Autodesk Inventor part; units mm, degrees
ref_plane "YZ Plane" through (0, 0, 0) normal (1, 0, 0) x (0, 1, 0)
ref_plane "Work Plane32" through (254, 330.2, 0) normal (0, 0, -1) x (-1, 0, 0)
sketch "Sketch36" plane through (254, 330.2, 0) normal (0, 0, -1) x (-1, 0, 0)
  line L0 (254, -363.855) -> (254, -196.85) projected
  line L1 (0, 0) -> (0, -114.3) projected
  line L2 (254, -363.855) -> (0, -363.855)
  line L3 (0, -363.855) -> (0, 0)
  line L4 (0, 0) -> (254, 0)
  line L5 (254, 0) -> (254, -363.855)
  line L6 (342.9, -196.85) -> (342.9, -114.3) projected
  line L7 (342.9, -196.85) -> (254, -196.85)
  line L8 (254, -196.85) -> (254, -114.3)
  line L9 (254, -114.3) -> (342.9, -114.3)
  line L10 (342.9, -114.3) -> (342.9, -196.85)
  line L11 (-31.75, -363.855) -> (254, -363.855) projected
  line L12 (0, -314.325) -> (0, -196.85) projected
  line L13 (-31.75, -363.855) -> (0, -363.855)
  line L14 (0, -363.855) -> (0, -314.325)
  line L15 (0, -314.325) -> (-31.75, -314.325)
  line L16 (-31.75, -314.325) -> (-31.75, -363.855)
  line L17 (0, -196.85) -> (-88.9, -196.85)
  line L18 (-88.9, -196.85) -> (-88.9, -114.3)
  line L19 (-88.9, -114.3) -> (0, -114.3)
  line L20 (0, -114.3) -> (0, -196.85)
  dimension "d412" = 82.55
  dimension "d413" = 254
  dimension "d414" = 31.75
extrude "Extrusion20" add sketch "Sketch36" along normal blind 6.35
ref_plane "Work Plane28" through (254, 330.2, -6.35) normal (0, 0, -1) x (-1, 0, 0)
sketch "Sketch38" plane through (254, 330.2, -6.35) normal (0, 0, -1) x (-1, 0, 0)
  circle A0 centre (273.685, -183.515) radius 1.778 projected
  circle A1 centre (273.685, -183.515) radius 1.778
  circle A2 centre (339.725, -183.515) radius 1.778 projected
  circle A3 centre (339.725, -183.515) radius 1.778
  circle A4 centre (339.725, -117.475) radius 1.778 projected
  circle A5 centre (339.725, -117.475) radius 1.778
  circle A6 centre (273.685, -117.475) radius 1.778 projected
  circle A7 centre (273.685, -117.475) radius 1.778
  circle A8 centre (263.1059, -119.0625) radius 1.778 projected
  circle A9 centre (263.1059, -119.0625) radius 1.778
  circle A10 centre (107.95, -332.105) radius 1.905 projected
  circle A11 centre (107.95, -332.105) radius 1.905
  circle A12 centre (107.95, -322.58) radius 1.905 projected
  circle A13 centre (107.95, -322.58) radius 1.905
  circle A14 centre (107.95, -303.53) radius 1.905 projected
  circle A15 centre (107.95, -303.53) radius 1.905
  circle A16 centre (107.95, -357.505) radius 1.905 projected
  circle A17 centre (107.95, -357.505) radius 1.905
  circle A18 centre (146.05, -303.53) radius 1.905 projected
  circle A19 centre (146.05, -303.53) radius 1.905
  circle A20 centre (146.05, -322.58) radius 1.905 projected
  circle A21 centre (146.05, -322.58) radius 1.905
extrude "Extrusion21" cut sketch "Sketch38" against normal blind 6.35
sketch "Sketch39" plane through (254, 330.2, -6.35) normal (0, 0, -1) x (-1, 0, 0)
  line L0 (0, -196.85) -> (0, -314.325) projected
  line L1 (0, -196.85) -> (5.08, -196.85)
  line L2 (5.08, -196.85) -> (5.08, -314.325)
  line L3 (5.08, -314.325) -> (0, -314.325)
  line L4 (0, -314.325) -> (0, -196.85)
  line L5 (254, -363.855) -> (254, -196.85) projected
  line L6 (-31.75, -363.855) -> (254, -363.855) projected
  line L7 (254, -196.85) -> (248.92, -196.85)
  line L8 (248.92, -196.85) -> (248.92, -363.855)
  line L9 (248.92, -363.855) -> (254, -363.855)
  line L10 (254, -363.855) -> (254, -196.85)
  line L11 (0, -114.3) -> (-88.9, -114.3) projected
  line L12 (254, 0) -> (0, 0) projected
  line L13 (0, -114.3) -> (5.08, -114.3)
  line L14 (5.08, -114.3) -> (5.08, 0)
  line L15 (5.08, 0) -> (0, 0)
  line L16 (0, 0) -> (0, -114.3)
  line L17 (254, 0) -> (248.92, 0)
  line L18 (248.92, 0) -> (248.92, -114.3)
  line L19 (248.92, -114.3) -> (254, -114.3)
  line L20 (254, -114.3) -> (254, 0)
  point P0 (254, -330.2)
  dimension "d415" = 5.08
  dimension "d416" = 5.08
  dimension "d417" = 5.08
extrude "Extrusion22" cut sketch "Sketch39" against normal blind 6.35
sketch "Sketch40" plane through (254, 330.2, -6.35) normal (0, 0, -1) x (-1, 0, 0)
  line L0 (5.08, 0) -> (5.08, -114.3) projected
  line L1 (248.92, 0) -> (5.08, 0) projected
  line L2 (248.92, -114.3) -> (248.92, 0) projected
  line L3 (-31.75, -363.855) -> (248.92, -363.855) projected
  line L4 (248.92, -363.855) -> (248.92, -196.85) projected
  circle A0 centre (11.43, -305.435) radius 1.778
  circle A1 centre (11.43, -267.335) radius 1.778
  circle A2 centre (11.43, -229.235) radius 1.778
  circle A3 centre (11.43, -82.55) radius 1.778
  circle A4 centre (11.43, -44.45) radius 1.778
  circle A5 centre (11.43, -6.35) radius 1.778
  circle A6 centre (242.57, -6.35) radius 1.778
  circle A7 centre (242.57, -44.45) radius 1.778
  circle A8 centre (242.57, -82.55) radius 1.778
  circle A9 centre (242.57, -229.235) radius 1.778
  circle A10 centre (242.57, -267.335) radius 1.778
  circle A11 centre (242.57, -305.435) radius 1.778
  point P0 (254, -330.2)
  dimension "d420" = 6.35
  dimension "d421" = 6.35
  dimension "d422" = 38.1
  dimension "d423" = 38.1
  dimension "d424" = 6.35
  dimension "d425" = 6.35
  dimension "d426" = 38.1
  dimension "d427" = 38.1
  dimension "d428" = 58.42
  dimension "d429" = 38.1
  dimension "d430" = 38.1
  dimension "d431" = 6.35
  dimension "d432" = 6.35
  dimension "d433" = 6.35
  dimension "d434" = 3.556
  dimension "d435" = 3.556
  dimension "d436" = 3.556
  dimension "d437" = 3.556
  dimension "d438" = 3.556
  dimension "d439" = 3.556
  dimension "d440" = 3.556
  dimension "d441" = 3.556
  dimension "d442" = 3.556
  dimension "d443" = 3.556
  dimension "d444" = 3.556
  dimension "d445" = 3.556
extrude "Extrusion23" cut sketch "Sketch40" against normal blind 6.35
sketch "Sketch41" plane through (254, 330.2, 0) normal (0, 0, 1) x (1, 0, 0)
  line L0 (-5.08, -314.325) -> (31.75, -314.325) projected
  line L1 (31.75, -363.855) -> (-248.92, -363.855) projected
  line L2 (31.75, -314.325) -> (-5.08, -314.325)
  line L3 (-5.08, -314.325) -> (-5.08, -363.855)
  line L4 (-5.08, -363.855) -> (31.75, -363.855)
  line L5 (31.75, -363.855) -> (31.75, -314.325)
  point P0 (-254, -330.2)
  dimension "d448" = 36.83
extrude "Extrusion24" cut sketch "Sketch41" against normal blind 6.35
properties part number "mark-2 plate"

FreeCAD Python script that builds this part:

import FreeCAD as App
import Part
import Sketcher
from FreeCAD import Vector
Q = App.Units.Quantity

doc = App.newDocument("Part")
body = doc.addObject("PartDesign::Body", "Body")

sketch1 = body.newObject("Sketcher::SketchObject", "Sketch")
sketch1.AttachmentSupport = (doc.getObject("XY_Plane"), [""])
sketch1.MapMode = "FlatFace"
sketch1.addGeometry(Part.LineSegment(Vector(0, -33.655, 0), Vector(0, 133.35, 0)), False)
sketch1.addGeometry(Part.LineSegment(Vector(0, 133.35, 0), Vector(-88.9, 133.35, 0)), False)
sketch1.addGeometry(Part.LineSegment(Vector(-88.9, 133.35, 0), Vector(-88.9, 215.9, 0)), False)
sketch1.addGeometry(Part.LineSegment(Vector(-88.9, 215.9, 0), Vector(0, 215.9, 0)), False)
sketch1.addGeometry(Part.LineSegment(Vector(0, 215.9, 0), Vector(0, 330.2, 0)), False)
sketch1.addGeometry(Part.LineSegment(Vector(0, 330.2, 0), Vector(254, 330.2, 0)), False)
sketch1.addGeometry(Part.LineSegment(Vector(254, 330.2, 0), Vector(254, 215.9, 0)), False)
sketch1.addGeometry(Part.LineSegment(Vector(254, 215.9, 0), Vector(342.9, 215.9, 0)), False)
sketch1.addGeometry(Part.LineSegment(Vector(342.9, 215.9, 0), Vector(342.9, 133.35, 0)), False)
sketch1.addGeometry(Part.LineSegment(Vector(342.9, 133.35, 0), Vector(254, 133.35, 0)), False)
sketch1.addGeometry(Part.LineSegment(Vector(254, 133.35, 0), Vector(254, 15.875, 0)), False)
sketch1.addGeometry(Part.LineSegment(Vector(254, 15.875, 0), Vector(285.75, 15.875, 0)), False)
sketch1.addGeometry(Part.LineSegment(Vector(285.75, 15.875, 0), Vector(285.75, -33.655, 0)), False)
sketch1.addGeometry(Part.LineSegment(Vector(285.75, -33.655, 0), Vector(0, -33.655, 0)), False)
sketch1.addConstraint(Sketcher.Constraint("Coincident", 0, 2, 1, 1))
sketch1.addConstraint(Sketcher.Constraint("Coincident", 1, 2, 2, 1))
sketch1.addConstraint(Sketcher.Constraint("Coincident", 2, 2, 3, 1))
sketch1.addConstraint(Sketcher.Constraint("Coincident", 3, 2, 4, 1))
sketch1.addConstraint(Sketcher.Constraint("Coincident", 4, 2, 5, 1))
sketch1.addConstraint(Sketcher.Constraint("Coincident", 5, 2, 6, 1))
sketch1.addConstraint(Sketcher.Constraint("Coincident", 6, 2, 7, 1))
sketch1.addConstraint(Sketcher.Constraint("Coincident", 7, 2, 8, 1))
sketch1.addConstraint(Sketcher.Constraint("Coincident", 8, 2, 9, 1))
sketch1.addConstraint(Sketcher.Constraint("Coincident", 9, 2, 10, 1))
sketch1.addConstraint(Sketcher.Constraint("Coincident", 10, 2, 11, 1))
sketch1.addConstraint(Sketcher.Constraint("Coincident", 11, 2, 12, 1))
sketch1.addConstraint(Sketcher.Constraint("Coincident", 12, 2, 13, 1))
sketch1.addConstraint(Sketcher.Constraint("Coincident", 13, 2, 0, 1))
sketch1.addConstraint(Sketcher.Constraint("Vertical", 0))
sketch1.addConstraint(Sketcher.Constraint("Horizontal", 1))
sketch1.addConstraint(Sketcher.Constraint("Vertical", 2))
sketch1.addConstraint(Sketcher.Constraint("Horizontal", 3))
sketch1.addConstraint(Sketcher.Constraint("Vertical", 4))
sketch1.addConstraint(Sketcher.Constraint("Horizontal", 5))
sketch1.addConstraint(Sketcher.Constraint("Vertical", 6))
sketch1.addConstraint(Sketcher.Constraint("Horizontal", 7))
sketch1.addConstraint(Sketcher.Constraint("Vertical", 8))
sketch1.addConstraint(Sketcher.Constraint("Horizontal", 9))
sketch1.addConstraint(Sketcher.Constraint("Vertical", 10))
sketch1.addConstraint(Sketcher.Constraint("Horizontal", 11))
sketch1.addConstraint(Sketcher.Constraint("Vertical", 12))
sketch1.addConstraint(Sketcher.Constraint("Horizontal", 13))
sketch1.addConstraint(Sketcher.Constraint("PointOnObject", 0, 2, -2))
sketch1.addConstraint(Sketcher.Constraint("PointOnObject", 3, 2, -2))
sketch1.addConstraint(Sketcher.Constraint("Horizontal", 3, 2, 6, 2))
sketch1.addConstraint(Sketcher.Constraint("Horizontal", 1, 2, 8, 2))
sketch1.addConstraint(Sketcher.Constraint("Vertical", 6, 2, 9, 2))
sketch1.addConstraint(Sketcher.Constraint("Equal", 3, 7))
sketch1.addConstraint(Sketcher.Constraint("DistanceX", 5, 1, 5, 2, Q("10 in")))
sketch1.addConstraint(Sketcher.Constraint("DistanceX", 11, 1, 11, 2, Q("1.25 in")))
sketch1.addConstraint(Sketcher.Constraint("DistanceY", 2, 1, 2, 2, Q("3.25 in")))
sketch1.addConstraint(Sketcher.Constraint("DistanceX", 1, 2, 1, 1, Q("3.5 in")))
sketch1.addConstraint(Sketcher.Constraint("DistanceY", 4, 1, 4, 2, Q("4.5 in")))
sketch1.addConstraint(Sketcher.Constraint("DistanceY", -1, 1, 4, 2, Q("13 in")))
sketch1.addConstraint(Sketcher.Constraint("DistanceY", 12, 2, 12, 1, Q("1.95 in")))
sketch1.addConstraint(Sketcher.Constraint("DistanceY", 0, 1, 0, 2, Q("6.575 in")))
pad1 = body.newObject("PartDesign::Pad", "Pad")
pad1.Profile = sketch1
pad1.Length = Q("0.25 in")
pad1.Reversed = True

sketch2 = body.newObject("Sketcher::SketchObject", "Sketch001")
sketch2.AttachmentSupport = (doc.getObject("XY_Plane"), [""])
sketch2.MapMode = "FlatFace"
sketch2.AttachmentOffset = App.Placement(Vector(0, 0, -0.25 * 25.4), App.Rotation())
sketch2.addGeometry(Part.Circle(Vector(-19.685, 146.685, 0), Vector(0, 0, 1), 1.778), False)
sketch2.addGeometry(Part.Circle(Vector(-85.725, 146.685, 0), Vector(0, 0, 1), 1.778), False)
sketch2.addGeometry(Part.Circle(Vector(-85.725, 212.725, 0), Vector(0, 0, 1), 1.778), False)
sketch2.addGeometry(Part.Circle(Vector(-19.685, 212.725, 0), Vector(0, 0, 1), 1.778), False)
sketch2.addGeometry(Part.Circle(Vector(-9.1059, 211.1375, 0), Vector(0, 0, 1), 1.778), False)
sketch2.addGeometry(Part.Circle(Vector(146.05, -1.905, 0), Vector(0, 0, 1), 1.905), False)
sketch2.addGeometry(Part.Circle(Vector(146.05, 7.62, 0), Vector(0, 0, 1), 1.905), False)
sketch2.addGeometry(Part.Circle(Vector(146.05, 26.67, 0), Vector(0, 0, 1), 1.905), False)
sketch2.addGeometry(Part.Circle(Vector(146.05, -27.305, 0), Vector(0, 0, 1), 1.905), False)
sketch2.addGeometry(Part.Circle(Vector(107.95, 26.67, 0), Vector(0, 0, 1), 1.905), False)
sketch2.addGeometry(Part.Circle(Vector(107.95, 7.62, 0), Vector(0, 0, 1), 1.905), False)
sketch2.addConstraint(Sketcher.Constraint("Equal", 0, 1))
sketch2.addConstraint(Sketcher.Constraint("Equal", 1, 2))
sketch2.addConstraint(Sketcher.Constraint("Equal", 2, 3))
sketch2.addConstraint(Sketcher.Constraint("Equal", 3, 4))
sketch2.addConstraint(Sketcher.Constraint("Equal", 5, 6))
sketch2.addConstraint(Sketcher.Constraint("Equal", 6, 7))
sketch2.addConstraint(Sketcher.Constraint("Equal", 7, 8))
sketch2.addConstraint(Sketcher.Constraint("Equal", 8, 9))
sketch2.addConstraint(Sketcher.Constraint("Equal", 9, 10))
sketch2.addConstraint(Sketcher.Constraint("Horizontal", 0, 3, 1, 3))
sketch2.addConstraint(Sketcher.Constraint("Horizontal", 2, 3, 3, 3))
sketch2.addConstraint(Sketcher.Constraint("Horizontal", 7, 3, 9, 3))
sketch2.addConstraint(Sketcher.Constraint("Horizontal", 6, 3, 10, 3))
sketch2.addConstraint(Sketcher.Constraint("Vertical", 1, 3, 2, 3))
sketch2.addConstraint(Sketcher.Constraint("Vertical", 0, 3, 3, 3))
sketch2.addConstraint(Sketcher.Constraint("Vertical", 5, 3, 6, 3))
sketch2.addConstraint(Sketcher.Constraint("Vertical", 6, 3, 7, 3))
sketch2.addConstraint(Sketcher.Constraint("Vertical", 7, 3, 8, 3))
sketch2.addConstraint(Sketcher.Constraint("Vertical", 9, 3, 10, 3))
sketch2.addConstraint(Sketcher.Constraint("Diameter", 0, Q("0.14 in")))
sketch2.addConstraint(Sketcher.Constraint("Diameter", 5, Q("0.15 in")))
sketch2.addConstraint(Sketcher.Constraint("DistanceY", 8, 3, 5, 3, Q("1 in")))
sketch2.addConstraint(Sketcher.Constraint("DistanceY", -1, 1, 6, 3, Q("0.3 in")))
sketch2.addConstraint(Sketcher.Constraint("DistanceX", 1, 3, 0, 3, Q("2.6 in")))
sketch2.addConstraint(Sketcher.Constraint("DistanceY", 1, 3, 2, 3, Q("2.6 in")))
sketch2.addConstraint(Sketcher.Constraint("DistanceX", 9, 3, 7, 3, Q("1.5 in")))
sketch2.addConstraint(Sketcher.Constraint("DistanceX", -1, 1, 5, 3, Q("5.75 in")))
sketch2.addConstraint(Sketcher.Constraint("DistanceY", -1, 1, 7, 3, Q("1.05 in")))
sketch2.addConstraint(Sketcher.Constraint("DistanceY", 5, 3, 0, 3, Q("5.85 in")))
sketch2.addConstraint(Sketcher.Constraint("DistanceX", 0, 3, -1, 1, Q("0.775 in")))
sketch2.addConstraint(Sketcher.Constraint("DistanceY", -1, 1, 0, 3, Q("5.775 in")))
sketch2.addConstraint(Sketcher.Constraint("DistanceY", -1, 1, 4, 3, Q("8.3125 in")))
sketch2.addConstraint(Sketcher.Constraint("DistanceX", 4, 3, -1, 1, Q("0.3585 in")))
pocket1 = body.newObject("PartDesign::Pocket", "Pocket")
pocket1.Profile = sketch2
pocket1.Length = Q("0.25 in")
pocket1.Reversed = True

sketch3 = body.newObject("Sketcher::SketchObject", "Sketch002")
sketch3.AttachmentSupport = (doc.getObject("XY_Plane"), [""])
sketch3.MapMode = "FlatFace"
sketch3.AttachmentOffset = App.Placement(Vector(0, 0, -0.25 * 25.4), App.Rotation())
sketch3.addGeometry(Part.LineSegment(Vector(248.92, 133.35, 0), Vector(254, 133.35, 0)), False)
sketch3.addGeometry(Part.LineSegment(Vector(254, 133.35, 0), Vector(254, 15.875, 0)), False)
sketch3.addGeometry(Part.LineSegment(Vector(254, 15.875, 0), Vector(248.92, 15.875, 0)), False)
sketch3.addGeometry(Part.LineSegment(Vector(248.92, 15.875, 0), Vector(248.92, 133.35, 0)), False)
sketch3.addGeometry(Part.LineSegment(Vector(5.08, -33.655, 0), Vector(0, -33.655, 0)), False)
sketch3.addGeometry(Part.LineSegment(Vector(0, -33.655, 0), Vector(0, 133.35, 0)), False)
sketch3.addGeometry(Part.LineSegment(Vector(0, 133.35, 0), Vector(5.08, 133.35, 0)), False)
sketch3.addGeometry(Part.LineSegment(Vector(5.08, 133.35, 0), Vector(5.08, -33.655, 0)), False)
sketch3.addGeometry(Part.LineSegment(Vector(0, 215.9, 0), Vector(0, 330.2, 0)), False)
sketch3.addGeometry(Part.LineSegment(Vector(0, 330.2, 0), Vector(5.08, 330.2, 0)), False)
sketch3.addGeometry(Part.LineSegment(Vector(5.08, 330.2, 0), Vector(5.08, 215.9, 0)), False)
sketch3.addGeometry(Part.LineSegment(Vector(5.08, 215.9, 0), Vector(0, 215.9, 0)), False)
sketch3.addGeometry(Part.LineSegment(Vector(248.92, 215.9, 0), Vector(248.92, 330.2, 0)), False)
sketch3.addGeometry(Part.LineSegment(Vector(248.92, 330.2, 0), Vector(254, 330.2, 0)), False)
sketch3.addGeometry(Part.LineSegment(Vector(254, 330.2, 0), Vector(254, 215.9, 0)), False)
sketch3.addGeometry(Part.LineSegment(Vector(254, 215.9, 0), Vector(248.92, 215.9, 0)), False)
sketch3.addConstraint(Sketcher.Constraint("Coincident", 0, 2, 1, 1))
sketch3.addConstraint(Sketcher.Constraint("Coincident", 1, 2, 2, 1))
sketch3.addConstraint(Sketcher.Constraint("Coincident", 2, 2, 3, 1))
sketch3.addConstraint(Sketcher.Constraint("Coincident", 3, 2, 0, 1))
sketch3.addConstraint(Sketcher.Constraint("Coincident", 4, 2, 5, 1))
sketch3.addConstraint(Sketcher.Constraint("Coincident", 5, 2, 6, 1))
sketch3.addConstraint(Sketcher.Constraint("Coincident", 6, 2, 7, 1))
sketch3.addConstraint(Sketcher.Constraint("Coincident", 7, 2, 4, 1))
sketch3.addConstraint(Sketcher.Constraint("Coincident", 8, 2, 9, 1))
sketch3.addConstraint(Sketcher.Constraint("Coincident", 9, 2, 10, 1))
sketch3.addConstraint(Sketcher.Constraint("Coincident", 10, 2, 11, 1))
sketch3.addConstraint(Sketcher.Constraint("Coincident", 11, 2, 8, 1))
sketch3.addConstraint(Sketcher.Constraint("Coincident", 12, 2, 13, 1))
sketch3.addConstraint(Sketcher.Constraint("Coincident", 13, 2, 14, 1))
sketch3.addConstraint(Sketcher.Constraint("Coincident", 14, 2, 15, 1))
sketch3.addConstraint(Sketcher.Constraint("Coincident", 15, 2, 12, 1))
sketch3.addConstraint(Sketcher.Constraint("Horizontal", 0))
sketch3.addConstraint(Sketcher.Constraint("Vertical", 1))
sketch3.addConstraint(Sketcher.Constraint("Horizontal", 2))
sketch3.addConstraint(Sketcher.Constraint("Vertical", 3))
sketch3.addConstraint(Sketcher.Constraint("Horizontal", 4))
sketch3.addConstraint(Sketcher.Constraint("Vertical", 5))
sketch3.addConstraint(Sketcher.Constraint("Horizontal", 6))
sketch3.addConstraint(Sketcher.Constraint("Vertical", 7))
sketch3.addConstraint(Sketcher.Constraint("Vertical", 8))
sketch3.addConstraint(Sketcher.Constraint("Horizontal", 9))
sketch3.addConstraint(Sketcher.Constraint("Vertical", 10))
sketch3.addConstraint(Sketcher.Constraint("Horizontal", 11))
sketch3.addConstraint(Sketcher.Constraint("Vertical", 12))
sketch3.addConstraint(Sketcher.Constraint("Horizontal", 13))
sketch3.addConstraint(Sketcher.Constraint("Vertical", 14))
sketch3.addConstraint(Sketcher.Constraint("Horizontal", 15))
sketch3.addConstraint(Sketcher.Constraint("PointOnObject", 4, 2, -2))
sketch3.addConstraint(Sketcher.Constraint("PointOnObject", 8, 2, -2))
sketch3.addConstraint(Sketcher.Constraint("Horizontal", 3, 2, 5, 2))
sketch3.addConstraint(Sketcher.Constraint("Horizontal", 9, 2, 12, 2))
sketch3.addConstraint(Sketcher.Constraint("Horizontal", 11, 2, 14, 2))
sketch3.addConstraint(Sketcher.Constraint("Vertical", 7, 2, 9, 2))
sketch3.addConstraint(Sketcher.Constraint("Vertical", 3, 2, 12, 2))
sketch3.addConstraint(Sketcher.Constraint("Vertical", 1, 2, 13, 2))
sketch3.addConstraint(Sketcher.Constraint("Equal", 2, 4))
sketch3.addConstraint(Sketcher.Constraint("DistanceX", 0, 1, 0, 2, Q("0.2 in")))
sketch3.addConstraint(Sketcher.Constraint("DistanceY", 8, 1, 8, 2, Q("4.5 in")))
sketch3.addConstraint(Sketcher.Constraint("DistanceX", -1, 1, 0, 2, Q("10 in")))
sketch3.addConstraint(Sketcher.Constraint("DistanceY", -1, 1, 8, 2, Q("13 in")))
sketch3.addConstraint(Sketcher.Constraint("DistanceY", 1, 2, 1, 1, Q("4.625 in")))
sketch3.addConstraint(Sketcher.Constraint("DistanceY", 5, 1, 5, 2, Q("6.575 in")))
sketch3.addConstraint(Sketcher.Constraint("DistanceY", -1, 1, 0, 2, Q("5.25 in")))
pocket2 = body.newObject("PartDesign::Pocket", "Pocket001")
pocket2.Profile = sketch3
pocket2.Length = Q("0.25 in")
pocket2.Reversed = True

sketch4 = body.newObject("Sketcher::SketchObject", "Sketch003")
sketch4.AttachmentSupport = (doc.getObject("XY_Plane"), [""])
sketch4.MapMode = "FlatFace"
sketch4.AttachmentOffset = App.Placement(Vector(0, 0, -0.25 * 25.4), App.Rotation())
sketch4.addGeometry(Part.Circle(Vector(242.57, 24.765, 0), Vector(0, 0, 1), 1.778), False)
sketch4.addGeometry(Part.Circle(Vector(242.57, 62.865, 0), Vector(0, 0, 1), 1.778), False)
sketch4.addGeometry(Part.Circle(Vector(242.57, 100.965, 0), Vector(0, 0, 1), 1.778), False)
sketch4.addGeometry(Part.Circle(Vector(242.57, 247.65, 0), Vector(0, 0, 1), 1.778), False)
sketch4.addGeometry(Part.Circle(Vector(242.57, 285.75, 0), Vector(0, 0, 1), 1.778), False)
sketch4.addGeometry(Part.Circle(Vector(242.57, 323.85, 0), Vector(0, 0, 1), 1.778), False)
sketch4.addGeometry(Part.Circle(Vector(11.43, 323.85, 0), Vector(0, 0, 1), 1.778), False)
sketch4.addGeometry(Part.Circle(Vector(11.43, 285.75, 0), Vector(0, 0, 1), 1.778), False)
sketch4.addGeometry(Part.Circle(Vector(11.43, 247.65, 0), Vector(0, 0, 1), 1.778), False)
sketch4.addGeometry(Part.Circle(Vector(11.43, 100.965, 0), Vector(0, 0, 1), 1.778), False)
sketch4.addGeometry(Part.Circle(Vector(11.43, 62.865, 0), Vector(0, 0, 1), 1.778), False)
sketch4.addGeometry(Part.Circle(Vector(11.43, 24.765, 0), Vector(0, 0, 1), 1.778), False)
sketch4.addConstraint(Sketcher.Constraint("Equal", 0, 1))
sketch4.addConstraint(Sketcher.Constraint("Equal", 1, 2))
sketch4.addConstraint(Sketcher.Constraint("Equal", 2, 3))
sketch4.addConstraint(Sketcher.Constraint("Equal", 3, 4))
sketch4.addConstraint(Sketcher.Constraint("Equal", 4, 5))
sketch4.addConstraint(Sketcher.Constraint("Equal", 5, 6))
sketch4.addConstraint(Sketcher.Constraint("Equal", 6, 7))
sketch4.addConstraint(Sketcher.Constraint("Equal", 7, 8))
sketch4.addConstraint(Sketcher.Constraint("Equal", 8, 9))
sketch4.addConstraint(Sketcher.Constraint("Equal", 9, 10))
sketch4.addConstraint(Sketcher.Constraint("Equal", 10, 11))
sketch4.addConstraint(Sketcher.Constraint("Horizontal", 5, 3, 6, 3))
sketch4.addConstraint(Sketcher.Constraint("Horizontal", 4, 3, 7, 3))
sketch4.addConstraint(Sketcher.Constraint("Horizontal", 3, 3, 8, 3))
sketch4.addConstraint(Sketcher.Constraint("Horizontal", 2, 3, 9, 3))
sketch4.addConstraint(Sketcher.Constraint("Horizontal", 1, 3, 10, 3))
sketch4.addConstraint(Sketcher.Constraint("Horizontal", 0, 3, 11, 3))
sketch4.addConstraint(Sketcher.Constraint("Vertical", 0, 3, 1, 3))
sketch4.addConstraint(Sketcher.Constraint("Vertical", 1, 3, 2, 3))
sketch4.addConstraint(Sketcher.Constraint("Vertical", 2, 3, 3, 3))
sketch4.addConstraint(Sketcher.Constraint("Vertical", 3, 3, 4, 3))
sketch4.addConstraint(Sketcher.Constraint("Vertical", 4, 3, 5, 3))
sketch4.addConstraint(Sketcher.Constraint("Vertical", 6, 3, 7, 3))
sketch4.addConstraint(Sketcher.Constraint("Vertical", 7, 3, 8, 3))
sketch4.addConstraint(Sketcher.Constraint("Vertical", 8, 3, 9, 3))
sketch4.addConstraint(Sketcher.Constraint("Vertical", 9, 3, 10, 3))
sketch4.addConstraint(Sketcher.Constraint("Vertical", 10, 3, 11, 3))
sketch4.addConstraint(Sketcher.Constraint("Diameter", 0, Q("0.14 in")))
sketch4.addConstraint(Sketcher.Constraint("DistanceY", 0, 3, 1, 3, Q("1.5 in")))
sketch4.addConstraint(Sketcher.Constraint("DistanceY", 1, 3, 2, 3, Q("1.5 in")))
sketch4.addConstraint(Sketcher.Constraint("DistanceY", 3, 3, 4, 3, Q("1.5 in")))
sketch4.addConstraint(Sketcher.Constraint("DistanceY", 4, 3, 5, 3, Q("1.5 in")))
sketch4.addConstraint(Sketcher.Constraint("DistanceX", 6, 3, 5, 3, Q("9.1 in")))
sketch4.addConstraint(Sketcher.Constraint("DistanceX", -1, 1, 0, 3, Q("9.55 in")))
sketch4.addConstraint(Sketcher.Constraint("DistanceY", -1, 1, 3, 3, Q("9.75 in")))
sketch4.addConstraint(Sketcher.Constraint("DistanceY", -1, 1, 0, 3, Q("0.975 in")))
pocket3 = body.newObject("PartDesign::Pocket", "Pocket002")
pocket3.Profile = sketch4
pocket3.Length = Q("0.25 in")
pocket3.Reversed = True

sketch5 = body.newObject("Sketcher::SketchObject", "Sketch004")
sketch5.AttachmentSupport = (doc.getObject("XY_Plane"), [""])
sketch5.MapMode = "FlatFace"
sketch5.addGeometry(Part.LineSegment(Vector(285.75, 15.875, 0), Vector(248.92, 15.875, 0)), False)
sketch5.addGeometry(Part.LineSegment(Vector(248.92, 15.875, 0), Vector(248.92, -33.655, 0)), False)
sketch5.addGeometry(Part.LineSegment(Vector(248.92, -33.655, 0), Vector(285.75, -33.655, 0)), False)
sketch5.addGeometry(Part.LineSegment(Vector(285.75, -33.655, 0), Vector(285.75, 15.875, 0)), False)
sketch5.addConstraint(Sketcher.Constraint("Coincident", 0, 2, 1, 1))
sketch5.addConstraint(Sketcher.Constraint("Coincident", 1, 2, 2, 1))
sketch5.addConstraint(Sketcher.Constraint("Coincident", 2, 2, 3, 1))
sketch5.addConstraint(Sketcher.Constraint("Coincident", 3, 2, 0, 1))
sketch5.addConstraint(Sketcher.Constraint("Horizontal", 0))
sketch5.addConstraint(Sketcher.Constraint("Vertical", 1))
sketch5.addConstraint(Sketcher.Constraint("Horizontal", 2))
sketch5.addConstraint(Sketcher.Constraint("Vertical", 3))
sketch5.addConstraint(Sketcher.Constraint("DistanceX", 0, 2, 0, 1, Q("1.45 in")))
sketch5.addConstraint(Sketcher.Constraint("DistanceY", 1, 2, 1, 1, Q("1.95 in")))
sketch5.addConstraint(Sketcher.Constraint("DistanceX", -1, 1, 0, 2, Q("9.8 in")))
sketch5.addConstraint(Sketcher.Constraint("DistanceY", -1, 1, 0, 2, Q("0.625 in")))
pocket4 = body.newObject("PartDesign::Pocket", "Pocket003")
pocket4.Profile = sketch5
pocket4.Length = Q("0.25 in")

doc.recompute()
